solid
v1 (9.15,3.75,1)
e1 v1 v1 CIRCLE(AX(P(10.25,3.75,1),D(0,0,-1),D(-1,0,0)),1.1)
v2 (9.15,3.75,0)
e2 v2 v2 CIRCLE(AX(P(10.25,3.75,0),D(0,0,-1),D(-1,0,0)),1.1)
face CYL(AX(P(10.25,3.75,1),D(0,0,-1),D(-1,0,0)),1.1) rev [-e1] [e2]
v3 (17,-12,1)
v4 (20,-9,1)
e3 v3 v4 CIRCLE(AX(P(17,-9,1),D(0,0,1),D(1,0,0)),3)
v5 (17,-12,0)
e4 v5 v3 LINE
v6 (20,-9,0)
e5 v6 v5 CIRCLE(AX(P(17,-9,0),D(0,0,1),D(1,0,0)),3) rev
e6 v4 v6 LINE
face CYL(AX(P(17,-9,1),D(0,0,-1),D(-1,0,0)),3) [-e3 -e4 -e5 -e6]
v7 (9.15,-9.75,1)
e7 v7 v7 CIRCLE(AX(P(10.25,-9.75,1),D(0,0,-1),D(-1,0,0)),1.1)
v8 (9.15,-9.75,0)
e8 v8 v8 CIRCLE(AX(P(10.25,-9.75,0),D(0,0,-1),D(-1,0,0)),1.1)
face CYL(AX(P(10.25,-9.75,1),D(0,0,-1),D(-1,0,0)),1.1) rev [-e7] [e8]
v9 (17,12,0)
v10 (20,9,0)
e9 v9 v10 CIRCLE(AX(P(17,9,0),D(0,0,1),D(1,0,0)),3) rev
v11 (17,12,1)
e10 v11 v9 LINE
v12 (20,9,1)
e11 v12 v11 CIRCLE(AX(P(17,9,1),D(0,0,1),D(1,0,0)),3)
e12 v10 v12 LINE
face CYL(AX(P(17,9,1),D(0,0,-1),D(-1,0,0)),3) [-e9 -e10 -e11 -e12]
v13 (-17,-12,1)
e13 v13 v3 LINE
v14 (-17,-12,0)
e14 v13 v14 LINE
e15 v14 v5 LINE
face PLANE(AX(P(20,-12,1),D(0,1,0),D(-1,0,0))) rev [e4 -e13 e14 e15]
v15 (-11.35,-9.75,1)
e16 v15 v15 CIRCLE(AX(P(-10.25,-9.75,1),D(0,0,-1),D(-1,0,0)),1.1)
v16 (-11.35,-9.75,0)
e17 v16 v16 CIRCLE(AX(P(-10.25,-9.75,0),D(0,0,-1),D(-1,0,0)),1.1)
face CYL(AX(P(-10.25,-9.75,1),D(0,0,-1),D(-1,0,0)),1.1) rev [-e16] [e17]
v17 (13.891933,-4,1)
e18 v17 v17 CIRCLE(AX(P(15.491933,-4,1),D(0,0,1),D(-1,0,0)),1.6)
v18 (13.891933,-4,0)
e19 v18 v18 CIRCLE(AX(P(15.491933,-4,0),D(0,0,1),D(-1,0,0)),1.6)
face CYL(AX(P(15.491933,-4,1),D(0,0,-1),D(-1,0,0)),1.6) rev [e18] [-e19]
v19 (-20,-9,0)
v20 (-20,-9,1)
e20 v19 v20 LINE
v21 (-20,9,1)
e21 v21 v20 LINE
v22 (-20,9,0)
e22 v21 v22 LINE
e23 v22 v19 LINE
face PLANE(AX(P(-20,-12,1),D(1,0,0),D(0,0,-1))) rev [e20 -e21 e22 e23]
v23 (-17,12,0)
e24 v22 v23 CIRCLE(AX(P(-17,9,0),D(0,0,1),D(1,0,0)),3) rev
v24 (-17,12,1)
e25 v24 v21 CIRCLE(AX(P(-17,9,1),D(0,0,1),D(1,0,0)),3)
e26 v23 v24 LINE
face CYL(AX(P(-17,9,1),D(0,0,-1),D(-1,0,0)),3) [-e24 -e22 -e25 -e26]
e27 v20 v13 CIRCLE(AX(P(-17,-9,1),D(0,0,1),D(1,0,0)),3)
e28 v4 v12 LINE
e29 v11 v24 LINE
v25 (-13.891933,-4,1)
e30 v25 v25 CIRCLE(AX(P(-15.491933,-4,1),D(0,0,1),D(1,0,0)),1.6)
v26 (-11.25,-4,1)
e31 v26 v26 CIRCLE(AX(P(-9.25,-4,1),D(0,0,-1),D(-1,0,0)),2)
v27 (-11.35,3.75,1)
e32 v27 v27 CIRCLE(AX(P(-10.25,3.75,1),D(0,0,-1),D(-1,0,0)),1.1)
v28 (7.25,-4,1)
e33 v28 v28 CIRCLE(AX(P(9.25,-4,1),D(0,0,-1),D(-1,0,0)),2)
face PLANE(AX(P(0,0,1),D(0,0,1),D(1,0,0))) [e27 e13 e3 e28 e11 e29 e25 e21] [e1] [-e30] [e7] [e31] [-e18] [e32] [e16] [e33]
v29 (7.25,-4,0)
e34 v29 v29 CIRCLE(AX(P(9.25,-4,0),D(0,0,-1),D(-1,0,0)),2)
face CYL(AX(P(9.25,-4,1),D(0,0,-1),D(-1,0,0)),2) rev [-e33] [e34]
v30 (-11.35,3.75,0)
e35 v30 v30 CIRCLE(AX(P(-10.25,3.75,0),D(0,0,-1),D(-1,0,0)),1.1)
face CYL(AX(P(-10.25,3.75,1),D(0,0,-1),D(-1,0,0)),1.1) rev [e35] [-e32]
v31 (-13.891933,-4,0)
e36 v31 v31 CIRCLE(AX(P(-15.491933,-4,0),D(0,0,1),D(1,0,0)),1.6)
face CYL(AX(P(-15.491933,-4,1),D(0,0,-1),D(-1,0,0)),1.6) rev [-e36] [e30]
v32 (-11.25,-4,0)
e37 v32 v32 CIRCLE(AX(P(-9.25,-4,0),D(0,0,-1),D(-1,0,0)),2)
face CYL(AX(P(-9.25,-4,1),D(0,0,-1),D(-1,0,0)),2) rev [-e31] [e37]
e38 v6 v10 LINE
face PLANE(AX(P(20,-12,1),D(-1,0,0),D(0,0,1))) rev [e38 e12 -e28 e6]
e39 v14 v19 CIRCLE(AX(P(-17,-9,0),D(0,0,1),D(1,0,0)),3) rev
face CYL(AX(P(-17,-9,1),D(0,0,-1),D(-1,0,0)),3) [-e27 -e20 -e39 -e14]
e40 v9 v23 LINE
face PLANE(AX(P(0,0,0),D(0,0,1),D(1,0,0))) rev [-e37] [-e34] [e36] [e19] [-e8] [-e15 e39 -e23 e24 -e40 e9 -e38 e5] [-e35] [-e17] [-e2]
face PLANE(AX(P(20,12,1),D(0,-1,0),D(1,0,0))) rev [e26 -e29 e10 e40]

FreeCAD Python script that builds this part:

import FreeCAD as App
import Part
import Sketcher
from FreeCAD import Vector
Q = App.Units.Quantity


def edges_at(feature, points):
    """Names of the edges that pass closest to the given points."""
    edges = feature.Shape.Edges
    near = lambda p: min(range(len(edges)), key=lambda i: edges[i].distToShape(Part.Vertex(*p))[0])
    return sorted({f"Edge{near(p) + 1}" for p in points})


def add_polygon(sketch, points):
    """Adds a closed chain of lines whose ends are joined by coincident constraints."""
    first, n = sketch.GeometryCount, len(points)
    for a, b in zip(points, points[1:] + points[:1]):
        sketch.addGeometry(Part.LineSegment(App.Vector(*a, 0), App.Vector(*b, 0)), False)
    for i in range(n):
        sketch.addConstraint(Sketcher.Constraint("Coincident", first + i, 2, first + (i + 1) % n, 1))

doc = App.newDocument("Part")
body = doc.addObject("PartDesign::Body", "Body")

# Sketch on XY plane
sketch1 = doc.addObject("Sketcher::SketchObject", "Sketch")
body.addObject(sketch1)
sketch1.AttachmentSupport = (doc.XY_Plane, [""])
sketch1.MapMode = "FlatFace"
add_polygon(sketch1, [(-20, 12), (-20, -12), (20, -12), (20, 12)])  # lines 0-3
sketch1.addGeometry(Part.Circle(Vector(-15.5, -4, 0), Vector(0, 0, 1), 1.6), False)  # 4
sketch1.addGeometry(Part.Circle(Vector(15.5, -4, 0), Vector(0, 0, 1), 1.6), False)  # 5
sketch1.addConstraint(Sketcher.Constraint("Vertical", 0))
sketch1.addConstraint(Sketcher.Constraint("Horizontal", 1))
sketch1.addConstraint(Sketcher.Constraint("Vertical", 2))
sketch1.addConstraint(Sketcher.Constraint("Horizontal", 3))
sketch1.addConstraint(Sketcher.Constraint("Equal", 4, 5))
sketch1.addConstraint(Sketcher.Constraint("Symmetric", 0, 2, 2, 2, -1, 1))
sketch1.addConstraint(Sketcher.Constraint("Symmetric", 4, 3, 5, 3, -2))
sketch1.addConstraint(Sketcher.Constraint("Diameter", 4, Q("3.2 mm")))
sketch1.addConstraint(Sketcher.Constraint("DistanceX", 1, 1, 1, 2, Q("40 mm")))
sketch1.addConstraint(Sketcher.Constraint("DistanceY", 0, 2, 0, 1, Q("24 mm")))
sketch1.addConstraint(Sketcher.Constraint("DistanceY", 4, 3, -1, 1, Q("4 mm")))
sketch1.addConstraint(Sketcher.Constraint("DistanceX", 4, 3, -1, 1, Q("15.491933 mm")))
pad1 = doc.addObject("PartDesign::Pad", "Pad")
body.addObject(pad1)
pad1.Profile = sketch1
pad1.Length = 1
doc.recompute()

fillet = doc.addObject("PartDesign::Fillet", "Fillet")
body.addObject(fillet)
fillet.Base = (pad1, edges_at(pad1, [
    (-20, 12, 0.5),
    (20, 12, 0.5),
    (20, -12, 0.5),
    (-20, -12, 0.5),
]))
fillet.Radius = 3

# Sketch on XY plane
sketch2 = doc.addObject("Sketcher::SketchObject", "Sketch001")
body.addObject(sketch2)
sketch2.AttachmentSupport = (doc.XY_Plane, [""])
sketch2.MapMode = "FlatFace"
sketch2.addGeometry(Part.Circle(Vector(-10.2, 3.8, 0), Vector(0, 0, 1), 1.1), False)
sketch2.addGeometry(Part.Circle(Vector(-10.2, -9.8, 0), Vector(0, 0, 1), 1.1), False)
sketch2.addGeometry(Part.Circle(Vector(10.2, 3.8, 0), Vector(0, 0, 1), 1.1), False)
sketch2.addGeometry(Part.Circle(Vector(10.2, -9.8, 0), Vector(0, 0, 1), 1.1), False)
sketch2.addGeometry(Part.Circle(Vector(9.2, -4, 0), Vector(0, 0, 1), 2), False)
sketch2.addGeometry(Part.Circle(Vector(-9.2, -4, 0), Vector(0, 0, 1), 2), False)
sketch2.addConstraint(Sketcher.Constraint("Equal", 0, 1))
sketch2.addConstraint(Sketcher.Constraint("Equal", 1, 2))
sketch2.addConstraint(Sketcher.Constraint("Equal", 2, 3))
sketch2.addConstraint(Sketcher.Constraint("Equal", 4, 5))
sketch2.addConstraint(Sketcher.Constraint("Symmetric", 0, 3, 2, 3, -2))
sketch2.addConstraint(Sketcher.Constraint("Symmetric", 1, 3, 3, 3, -2))
sketch2.addConstraint(Sketcher.Constraint("Symmetric", 4, 3, 5, 3, -2))
sketch2.addConstraint(Sketcher.Constraint("Vertical", 0, 3, 1, 3))
sketch2.addConstraint(Sketcher.Constraint("Diameter", 4, Q("4 mm")))
sketch2.addConstraint(Sketcher.Constraint("Diameter", 0, Q("2.2 mm")))
sketch2.addConstraint(Sketcher.Constraint("DistanceY", 4, 3, -1, 1, Q("4 mm")))
sketch2.addConstraint(Sketcher.Constraint("DistanceX", 4, 3, 3, 3, Q("1 mm")))
sketch2.addConstraint(Sketcher.Constraint("DistanceY", 1, 3, 0, 3, Q("13.5 mm")))
sketch2.addConstraint(Sketcher.Constraint("DistanceX", 0, 3, 2, 3, Q("20.5 mm")))
sketch2.addConstraint(Sketcher.Constraint("DistanceY", -1, 1, 0, 3, Q("3.75 mm")))
pocket1 = doc.addObject("PartDesign::Pocket", "Pocket")
body.addObject(pocket1)
pocket1.Profile = sketch2
pocket1.Type = "ThroughAll"
pocket1.Reversed = True

doc.recompute()
